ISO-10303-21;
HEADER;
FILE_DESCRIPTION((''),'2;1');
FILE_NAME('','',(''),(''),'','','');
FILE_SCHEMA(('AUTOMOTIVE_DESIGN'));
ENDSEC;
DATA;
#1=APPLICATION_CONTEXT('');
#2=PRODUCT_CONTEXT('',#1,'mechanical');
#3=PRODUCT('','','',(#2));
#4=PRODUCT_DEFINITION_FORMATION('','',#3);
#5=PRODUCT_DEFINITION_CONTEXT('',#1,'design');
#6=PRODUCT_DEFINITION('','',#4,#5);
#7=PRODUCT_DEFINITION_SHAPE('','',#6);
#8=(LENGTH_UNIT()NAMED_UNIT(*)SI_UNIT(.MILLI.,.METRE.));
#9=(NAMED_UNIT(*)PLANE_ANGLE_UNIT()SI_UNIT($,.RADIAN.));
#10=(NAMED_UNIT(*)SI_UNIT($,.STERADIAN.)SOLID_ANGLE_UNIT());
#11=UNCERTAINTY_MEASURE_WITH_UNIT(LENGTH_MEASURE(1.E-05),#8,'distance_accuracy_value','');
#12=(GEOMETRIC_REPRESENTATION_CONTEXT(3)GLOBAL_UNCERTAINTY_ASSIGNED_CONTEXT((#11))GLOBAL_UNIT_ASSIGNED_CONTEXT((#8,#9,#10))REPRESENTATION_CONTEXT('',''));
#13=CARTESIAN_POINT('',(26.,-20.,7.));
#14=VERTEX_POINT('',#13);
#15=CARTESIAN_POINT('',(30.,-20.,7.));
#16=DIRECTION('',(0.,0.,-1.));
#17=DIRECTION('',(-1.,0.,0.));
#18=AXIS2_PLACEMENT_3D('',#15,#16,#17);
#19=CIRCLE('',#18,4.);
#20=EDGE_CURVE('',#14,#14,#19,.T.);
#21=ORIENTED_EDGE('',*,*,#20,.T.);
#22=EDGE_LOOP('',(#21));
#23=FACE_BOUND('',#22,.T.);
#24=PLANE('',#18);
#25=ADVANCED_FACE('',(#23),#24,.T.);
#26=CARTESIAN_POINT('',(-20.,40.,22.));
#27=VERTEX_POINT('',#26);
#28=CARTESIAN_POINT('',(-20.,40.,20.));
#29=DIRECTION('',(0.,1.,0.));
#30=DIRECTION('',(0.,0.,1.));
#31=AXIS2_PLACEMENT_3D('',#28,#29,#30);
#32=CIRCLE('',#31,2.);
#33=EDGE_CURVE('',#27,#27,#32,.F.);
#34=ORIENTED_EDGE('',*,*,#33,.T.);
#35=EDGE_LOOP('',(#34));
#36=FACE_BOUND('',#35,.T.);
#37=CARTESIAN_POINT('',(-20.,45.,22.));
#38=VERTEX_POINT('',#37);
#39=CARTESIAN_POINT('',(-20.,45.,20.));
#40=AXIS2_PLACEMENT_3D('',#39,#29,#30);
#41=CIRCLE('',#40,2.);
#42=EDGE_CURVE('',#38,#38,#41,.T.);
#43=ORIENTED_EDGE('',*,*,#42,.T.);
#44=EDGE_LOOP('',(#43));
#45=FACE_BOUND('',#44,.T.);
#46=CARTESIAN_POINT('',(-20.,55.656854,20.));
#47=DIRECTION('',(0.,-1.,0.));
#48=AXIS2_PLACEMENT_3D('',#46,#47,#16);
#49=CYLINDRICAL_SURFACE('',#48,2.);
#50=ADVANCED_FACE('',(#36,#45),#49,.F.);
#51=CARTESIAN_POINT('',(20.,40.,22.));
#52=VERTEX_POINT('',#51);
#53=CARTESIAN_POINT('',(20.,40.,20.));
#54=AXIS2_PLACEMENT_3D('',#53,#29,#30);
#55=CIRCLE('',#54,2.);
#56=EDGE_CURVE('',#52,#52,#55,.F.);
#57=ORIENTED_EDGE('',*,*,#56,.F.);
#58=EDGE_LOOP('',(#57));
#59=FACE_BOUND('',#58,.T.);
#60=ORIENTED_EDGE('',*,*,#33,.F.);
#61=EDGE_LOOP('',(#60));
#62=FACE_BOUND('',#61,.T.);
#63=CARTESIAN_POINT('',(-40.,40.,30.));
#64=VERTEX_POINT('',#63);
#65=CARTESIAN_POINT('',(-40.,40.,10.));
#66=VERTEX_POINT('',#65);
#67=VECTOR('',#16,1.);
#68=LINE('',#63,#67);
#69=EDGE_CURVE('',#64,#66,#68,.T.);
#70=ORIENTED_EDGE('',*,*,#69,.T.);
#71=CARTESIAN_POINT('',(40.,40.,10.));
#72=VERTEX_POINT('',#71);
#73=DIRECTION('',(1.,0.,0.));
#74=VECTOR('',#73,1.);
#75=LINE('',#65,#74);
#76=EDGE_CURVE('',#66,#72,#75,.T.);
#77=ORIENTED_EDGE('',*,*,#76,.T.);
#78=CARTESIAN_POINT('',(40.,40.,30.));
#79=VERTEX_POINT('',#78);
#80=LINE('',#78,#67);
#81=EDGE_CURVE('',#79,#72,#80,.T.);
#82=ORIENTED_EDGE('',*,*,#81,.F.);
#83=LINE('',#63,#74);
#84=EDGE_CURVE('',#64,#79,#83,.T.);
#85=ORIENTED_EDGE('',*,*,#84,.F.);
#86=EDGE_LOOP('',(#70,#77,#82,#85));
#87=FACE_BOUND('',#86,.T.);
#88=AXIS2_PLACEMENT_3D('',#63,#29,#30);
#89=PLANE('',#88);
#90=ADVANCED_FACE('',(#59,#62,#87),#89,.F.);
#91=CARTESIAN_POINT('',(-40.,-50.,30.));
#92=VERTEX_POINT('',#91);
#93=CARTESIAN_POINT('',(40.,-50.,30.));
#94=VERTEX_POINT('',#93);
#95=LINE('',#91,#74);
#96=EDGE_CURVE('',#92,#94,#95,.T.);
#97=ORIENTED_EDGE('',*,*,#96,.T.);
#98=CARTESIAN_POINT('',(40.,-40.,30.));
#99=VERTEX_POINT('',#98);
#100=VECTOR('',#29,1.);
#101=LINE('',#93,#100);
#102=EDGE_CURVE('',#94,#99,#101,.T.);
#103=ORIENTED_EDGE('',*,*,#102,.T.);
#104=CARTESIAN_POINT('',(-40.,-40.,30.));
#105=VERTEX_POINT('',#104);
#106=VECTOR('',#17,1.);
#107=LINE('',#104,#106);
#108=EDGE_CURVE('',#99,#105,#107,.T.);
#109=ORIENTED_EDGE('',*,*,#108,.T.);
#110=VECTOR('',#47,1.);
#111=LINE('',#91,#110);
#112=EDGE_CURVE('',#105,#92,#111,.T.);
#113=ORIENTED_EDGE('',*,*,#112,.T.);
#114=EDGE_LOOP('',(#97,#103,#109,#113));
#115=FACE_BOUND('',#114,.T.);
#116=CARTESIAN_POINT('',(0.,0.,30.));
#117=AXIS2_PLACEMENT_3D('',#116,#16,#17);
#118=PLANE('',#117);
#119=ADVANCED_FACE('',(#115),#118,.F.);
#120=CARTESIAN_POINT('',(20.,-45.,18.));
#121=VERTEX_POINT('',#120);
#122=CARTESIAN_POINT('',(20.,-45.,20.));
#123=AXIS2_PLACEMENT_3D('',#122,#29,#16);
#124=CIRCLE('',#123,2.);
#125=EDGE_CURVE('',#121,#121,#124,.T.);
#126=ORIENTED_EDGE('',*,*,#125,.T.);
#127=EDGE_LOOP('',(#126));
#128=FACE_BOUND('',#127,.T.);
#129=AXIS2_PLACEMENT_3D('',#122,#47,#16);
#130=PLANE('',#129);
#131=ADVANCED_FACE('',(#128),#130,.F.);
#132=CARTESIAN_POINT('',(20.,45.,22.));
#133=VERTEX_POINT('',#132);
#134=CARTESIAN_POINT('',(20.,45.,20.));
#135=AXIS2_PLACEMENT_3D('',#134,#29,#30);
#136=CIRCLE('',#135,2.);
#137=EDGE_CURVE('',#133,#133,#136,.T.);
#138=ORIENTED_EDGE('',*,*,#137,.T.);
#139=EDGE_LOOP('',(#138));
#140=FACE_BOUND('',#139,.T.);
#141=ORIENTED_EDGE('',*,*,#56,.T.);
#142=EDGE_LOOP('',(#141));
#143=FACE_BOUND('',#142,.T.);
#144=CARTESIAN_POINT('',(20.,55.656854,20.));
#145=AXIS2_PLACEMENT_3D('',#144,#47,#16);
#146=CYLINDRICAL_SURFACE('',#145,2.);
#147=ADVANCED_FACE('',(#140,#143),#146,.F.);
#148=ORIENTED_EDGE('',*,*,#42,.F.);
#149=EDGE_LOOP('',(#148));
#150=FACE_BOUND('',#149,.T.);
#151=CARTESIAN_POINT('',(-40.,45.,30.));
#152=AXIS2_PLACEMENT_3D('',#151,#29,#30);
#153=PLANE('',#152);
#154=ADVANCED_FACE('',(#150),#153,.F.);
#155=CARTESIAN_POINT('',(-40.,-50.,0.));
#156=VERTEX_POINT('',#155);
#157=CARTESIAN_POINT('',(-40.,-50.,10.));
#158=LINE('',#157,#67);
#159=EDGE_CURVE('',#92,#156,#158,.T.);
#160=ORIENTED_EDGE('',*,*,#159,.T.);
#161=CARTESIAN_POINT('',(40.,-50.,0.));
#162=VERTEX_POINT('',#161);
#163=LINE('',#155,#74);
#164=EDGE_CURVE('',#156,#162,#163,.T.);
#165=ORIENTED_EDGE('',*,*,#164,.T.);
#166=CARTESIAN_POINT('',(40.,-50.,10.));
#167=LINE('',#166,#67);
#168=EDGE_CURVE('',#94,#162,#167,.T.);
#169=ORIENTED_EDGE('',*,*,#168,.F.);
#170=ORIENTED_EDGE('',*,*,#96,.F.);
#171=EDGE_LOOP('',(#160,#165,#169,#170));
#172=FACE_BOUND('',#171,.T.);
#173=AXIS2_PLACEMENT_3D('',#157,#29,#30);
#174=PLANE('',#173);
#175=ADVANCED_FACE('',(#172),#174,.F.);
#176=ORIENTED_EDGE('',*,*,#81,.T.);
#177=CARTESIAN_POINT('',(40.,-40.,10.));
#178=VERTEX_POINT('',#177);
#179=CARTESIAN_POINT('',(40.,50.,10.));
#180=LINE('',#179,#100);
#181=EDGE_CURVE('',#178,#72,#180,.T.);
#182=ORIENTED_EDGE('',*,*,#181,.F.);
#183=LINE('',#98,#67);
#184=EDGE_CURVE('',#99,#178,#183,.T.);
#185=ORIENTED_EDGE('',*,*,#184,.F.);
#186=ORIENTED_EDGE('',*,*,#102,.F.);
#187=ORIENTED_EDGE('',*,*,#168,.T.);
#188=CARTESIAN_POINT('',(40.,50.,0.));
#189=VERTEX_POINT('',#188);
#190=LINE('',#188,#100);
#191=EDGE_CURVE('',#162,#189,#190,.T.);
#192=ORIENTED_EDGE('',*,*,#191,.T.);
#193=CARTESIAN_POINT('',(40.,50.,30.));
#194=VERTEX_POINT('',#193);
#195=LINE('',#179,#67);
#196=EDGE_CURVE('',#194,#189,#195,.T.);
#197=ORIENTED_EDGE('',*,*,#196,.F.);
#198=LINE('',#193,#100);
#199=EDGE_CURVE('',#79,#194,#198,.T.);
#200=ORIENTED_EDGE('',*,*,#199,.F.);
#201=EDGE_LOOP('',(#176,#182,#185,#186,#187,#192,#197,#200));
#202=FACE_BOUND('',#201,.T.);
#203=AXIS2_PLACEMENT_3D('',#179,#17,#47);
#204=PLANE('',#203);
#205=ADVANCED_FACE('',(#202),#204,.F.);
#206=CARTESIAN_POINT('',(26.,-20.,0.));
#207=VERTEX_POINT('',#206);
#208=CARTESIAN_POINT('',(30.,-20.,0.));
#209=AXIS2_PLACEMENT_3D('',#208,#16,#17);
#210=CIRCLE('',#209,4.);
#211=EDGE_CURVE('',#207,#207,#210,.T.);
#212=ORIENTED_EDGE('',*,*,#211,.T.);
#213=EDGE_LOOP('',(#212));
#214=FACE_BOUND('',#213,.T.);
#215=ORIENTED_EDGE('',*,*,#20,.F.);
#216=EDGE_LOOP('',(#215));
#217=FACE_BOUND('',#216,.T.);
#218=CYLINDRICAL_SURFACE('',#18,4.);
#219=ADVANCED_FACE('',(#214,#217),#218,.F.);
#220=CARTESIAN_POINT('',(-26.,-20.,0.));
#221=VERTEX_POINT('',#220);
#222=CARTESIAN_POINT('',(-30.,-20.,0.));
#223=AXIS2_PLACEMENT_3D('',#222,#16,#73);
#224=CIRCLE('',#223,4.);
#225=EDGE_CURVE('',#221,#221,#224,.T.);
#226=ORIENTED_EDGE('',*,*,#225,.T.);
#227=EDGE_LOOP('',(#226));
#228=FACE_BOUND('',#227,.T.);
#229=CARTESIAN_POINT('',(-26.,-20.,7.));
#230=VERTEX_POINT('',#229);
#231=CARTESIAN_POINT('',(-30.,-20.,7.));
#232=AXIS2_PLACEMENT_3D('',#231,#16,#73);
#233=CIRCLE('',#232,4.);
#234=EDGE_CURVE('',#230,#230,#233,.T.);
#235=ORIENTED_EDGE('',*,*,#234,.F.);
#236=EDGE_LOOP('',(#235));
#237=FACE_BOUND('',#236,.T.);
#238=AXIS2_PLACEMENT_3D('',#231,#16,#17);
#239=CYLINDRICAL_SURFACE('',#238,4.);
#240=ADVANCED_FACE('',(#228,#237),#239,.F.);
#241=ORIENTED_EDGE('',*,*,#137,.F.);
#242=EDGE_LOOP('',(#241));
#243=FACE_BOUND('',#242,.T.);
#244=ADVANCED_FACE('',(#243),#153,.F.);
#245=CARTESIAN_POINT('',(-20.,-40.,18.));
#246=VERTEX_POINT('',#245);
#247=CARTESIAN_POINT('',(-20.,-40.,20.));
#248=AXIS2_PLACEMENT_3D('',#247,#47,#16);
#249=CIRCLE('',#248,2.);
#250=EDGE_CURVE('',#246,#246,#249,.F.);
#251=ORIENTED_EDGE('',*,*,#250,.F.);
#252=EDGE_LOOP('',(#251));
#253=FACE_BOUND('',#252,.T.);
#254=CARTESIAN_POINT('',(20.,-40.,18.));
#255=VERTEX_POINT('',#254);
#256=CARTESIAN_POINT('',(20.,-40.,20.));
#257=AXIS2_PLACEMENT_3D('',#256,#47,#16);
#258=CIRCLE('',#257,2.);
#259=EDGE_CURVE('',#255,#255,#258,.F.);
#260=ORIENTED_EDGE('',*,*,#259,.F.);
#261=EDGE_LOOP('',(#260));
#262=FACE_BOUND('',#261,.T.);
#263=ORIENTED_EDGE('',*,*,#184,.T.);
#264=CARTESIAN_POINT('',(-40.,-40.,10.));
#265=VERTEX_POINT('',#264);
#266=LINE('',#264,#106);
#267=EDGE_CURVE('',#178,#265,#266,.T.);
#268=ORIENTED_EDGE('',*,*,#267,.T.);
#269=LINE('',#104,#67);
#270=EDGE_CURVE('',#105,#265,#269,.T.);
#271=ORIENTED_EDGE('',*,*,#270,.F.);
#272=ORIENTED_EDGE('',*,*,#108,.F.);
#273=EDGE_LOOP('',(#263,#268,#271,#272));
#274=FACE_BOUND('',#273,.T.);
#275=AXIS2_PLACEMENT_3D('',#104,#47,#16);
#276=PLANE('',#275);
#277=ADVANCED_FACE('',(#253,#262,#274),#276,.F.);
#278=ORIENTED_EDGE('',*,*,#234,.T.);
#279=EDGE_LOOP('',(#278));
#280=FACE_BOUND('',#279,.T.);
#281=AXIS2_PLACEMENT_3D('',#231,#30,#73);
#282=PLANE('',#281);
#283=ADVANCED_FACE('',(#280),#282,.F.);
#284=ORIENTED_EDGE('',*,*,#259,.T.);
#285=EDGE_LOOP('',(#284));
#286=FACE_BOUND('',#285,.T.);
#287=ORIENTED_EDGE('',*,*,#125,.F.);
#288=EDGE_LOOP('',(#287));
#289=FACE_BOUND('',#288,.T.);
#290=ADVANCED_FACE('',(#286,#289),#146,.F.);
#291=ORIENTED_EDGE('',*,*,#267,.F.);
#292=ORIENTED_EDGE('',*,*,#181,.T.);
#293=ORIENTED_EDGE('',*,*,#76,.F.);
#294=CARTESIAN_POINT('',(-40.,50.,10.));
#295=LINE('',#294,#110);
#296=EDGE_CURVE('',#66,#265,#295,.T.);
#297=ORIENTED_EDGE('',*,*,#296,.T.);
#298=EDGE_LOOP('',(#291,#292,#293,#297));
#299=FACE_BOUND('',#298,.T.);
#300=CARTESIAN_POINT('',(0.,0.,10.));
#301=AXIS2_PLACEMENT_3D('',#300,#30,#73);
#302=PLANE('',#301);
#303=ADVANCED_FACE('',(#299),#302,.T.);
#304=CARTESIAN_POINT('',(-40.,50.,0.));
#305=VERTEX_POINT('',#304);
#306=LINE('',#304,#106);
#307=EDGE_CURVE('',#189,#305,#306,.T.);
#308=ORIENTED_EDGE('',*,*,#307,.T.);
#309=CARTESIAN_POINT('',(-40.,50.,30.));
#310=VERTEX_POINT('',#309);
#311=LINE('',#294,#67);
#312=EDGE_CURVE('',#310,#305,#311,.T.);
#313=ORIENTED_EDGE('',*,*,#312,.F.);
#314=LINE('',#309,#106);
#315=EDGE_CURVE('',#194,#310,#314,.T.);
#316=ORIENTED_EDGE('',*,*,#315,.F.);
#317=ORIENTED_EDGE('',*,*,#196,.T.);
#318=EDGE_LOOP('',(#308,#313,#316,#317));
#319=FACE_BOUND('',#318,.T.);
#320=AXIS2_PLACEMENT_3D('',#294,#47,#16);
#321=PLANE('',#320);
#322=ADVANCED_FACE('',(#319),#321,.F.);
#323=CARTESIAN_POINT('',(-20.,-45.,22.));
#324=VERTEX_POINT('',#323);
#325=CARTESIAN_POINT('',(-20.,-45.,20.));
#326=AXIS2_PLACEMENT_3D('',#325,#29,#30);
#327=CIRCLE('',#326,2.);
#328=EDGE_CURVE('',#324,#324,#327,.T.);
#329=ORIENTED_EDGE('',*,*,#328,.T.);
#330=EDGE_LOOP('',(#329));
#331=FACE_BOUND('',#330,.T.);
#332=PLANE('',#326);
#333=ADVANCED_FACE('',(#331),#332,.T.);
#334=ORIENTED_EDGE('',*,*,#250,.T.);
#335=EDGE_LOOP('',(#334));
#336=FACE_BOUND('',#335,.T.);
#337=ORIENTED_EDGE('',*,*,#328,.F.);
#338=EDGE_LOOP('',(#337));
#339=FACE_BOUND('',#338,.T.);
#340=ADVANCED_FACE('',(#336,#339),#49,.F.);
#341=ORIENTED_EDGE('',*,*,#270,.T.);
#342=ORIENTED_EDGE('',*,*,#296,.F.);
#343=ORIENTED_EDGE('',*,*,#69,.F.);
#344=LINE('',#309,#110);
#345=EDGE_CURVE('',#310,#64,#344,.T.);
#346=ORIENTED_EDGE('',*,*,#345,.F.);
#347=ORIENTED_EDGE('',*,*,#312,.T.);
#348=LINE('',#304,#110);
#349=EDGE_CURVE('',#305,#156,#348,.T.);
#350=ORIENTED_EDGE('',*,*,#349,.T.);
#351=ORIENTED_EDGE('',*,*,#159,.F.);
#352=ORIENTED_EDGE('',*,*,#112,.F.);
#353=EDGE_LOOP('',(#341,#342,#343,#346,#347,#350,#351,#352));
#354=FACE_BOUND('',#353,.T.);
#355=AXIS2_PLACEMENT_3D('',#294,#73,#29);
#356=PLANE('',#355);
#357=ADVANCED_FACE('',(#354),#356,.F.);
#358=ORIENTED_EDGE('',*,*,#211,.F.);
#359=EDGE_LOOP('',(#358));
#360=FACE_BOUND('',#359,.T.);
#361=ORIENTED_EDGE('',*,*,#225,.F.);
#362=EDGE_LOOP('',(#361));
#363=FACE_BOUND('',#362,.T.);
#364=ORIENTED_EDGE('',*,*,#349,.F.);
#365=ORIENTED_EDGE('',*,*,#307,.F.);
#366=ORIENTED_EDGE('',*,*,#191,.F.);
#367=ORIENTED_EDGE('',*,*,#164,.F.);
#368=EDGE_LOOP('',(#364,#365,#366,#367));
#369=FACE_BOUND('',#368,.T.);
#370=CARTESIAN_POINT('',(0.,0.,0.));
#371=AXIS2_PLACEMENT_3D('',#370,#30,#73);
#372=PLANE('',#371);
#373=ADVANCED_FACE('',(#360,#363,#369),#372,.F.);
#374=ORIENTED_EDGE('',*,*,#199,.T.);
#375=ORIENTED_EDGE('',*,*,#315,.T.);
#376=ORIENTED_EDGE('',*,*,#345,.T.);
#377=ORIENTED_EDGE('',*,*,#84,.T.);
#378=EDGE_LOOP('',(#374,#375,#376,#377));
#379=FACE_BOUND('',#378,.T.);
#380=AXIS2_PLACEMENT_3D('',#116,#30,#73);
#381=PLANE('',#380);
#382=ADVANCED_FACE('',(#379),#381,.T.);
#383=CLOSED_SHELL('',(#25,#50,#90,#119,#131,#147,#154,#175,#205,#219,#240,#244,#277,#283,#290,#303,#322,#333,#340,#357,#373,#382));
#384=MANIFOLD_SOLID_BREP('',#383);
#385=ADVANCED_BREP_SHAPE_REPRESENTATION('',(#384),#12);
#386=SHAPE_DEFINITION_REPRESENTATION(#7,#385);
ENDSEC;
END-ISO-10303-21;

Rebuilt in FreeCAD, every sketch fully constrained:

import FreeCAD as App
import Part
import Sketcher

doc = App.newDocument("Part")
body = doc.addObject("PartDesign::Body", "Body")

sketch1 = body.newObject("Sketcher::SketchObject", "Sketch")
sketch1.AttachmentSupport = (doc.getObject("XY_Plane"), [""])
sketch1.MapMode = "FlatFace"
sketch1.addGeometry([
    Part.LineSegment(App.Vector(-40, 50, 0), App.Vector(-40, -50, 0)),
    Part.LineSegment(App.Vector(-40, -50, 0), App.Vector(40, -50, 0)),
    Part.LineSegment(App.Vector(40, -50, 0), App.Vector(40, 50, 0)),
    Part.LineSegment(App.Vector(40, 50, 0), App.Vector(-40, 50, 0)),
], False)
sketch1.addConstraint([
    Sketcher.Constraint("Coincident", 0, 2, 1, 1),
    Sketcher.Constraint("Coincident", 1, 2, 2, 1),
    Sketcher.Constraint("Coincident", 2, 2, 3, 1),
    Sketcher.Constraint("Coincident", 3, 2, 0, 1),
    Sketcher.Constraint("Vertical", 0),
    Sketcher.Constraint("Horizontal", 1),
    Sketcher.Constraint("Vertical", 2),
    Sketcher.Constraint("Horizontal", 3),
    Sketcher.Constraint("Symmetric", 0, 2, 2, 2, -1, 1),
    Sketcher.Constraint("DistanceX", 1, 1, 1, 2, 80.0),
    Sketcher.Constraint("DistanceY", 0, 2, 0, 1, 100.0),
])
pad1 = body.newObject("PartDesign::Pad", "Pad")
pad1.Profile = sketch1
pad1.Length = 10

sketch2 = body.newObject("Sketcher::SketchObject", "Sketch001")
sketch2.AttachmentSupport = (doc.getObject("XY_Plane"), [""])
sketch2.MapMode = "FlatFace"
sketch2.addGeometry([
    Part.Circle(App.Vector(30, -20, 0), App.Vector(0, 0, 1), 4),
    Part.Circle(App.Vector(-30, -20, 0), App.Vector(0, 0, 1), 4),
], False)
sketch2.addConstraint([
    Sketcher.Constraint("Equal", 0, 1),
    Sketcher.Constraint("Symmetric", 0, 3, 1, 3, -2),
    Sketcher.Constraint("Diameter", 0, 8.0),
    Sketcher.Constraint("DistanceX", -1, 1, 0, 3, 30.0),
    Sketcher.Constraint("DistanceY", 0, 3, -1, 1, 20.0),
])
pocket1 = body.newObject("PartDesign::Pocket", "Pocket")
pocket1.Profile = sketch2
pocket1.Length = 7
pocket1.Reversed = True

sketch3 = body.newObject("Sketcher::SketchObject", "Sketch002")
sketch3.AttachmentSupport = (doc.getObject("XY_Plane"), [""])
sketch3.MapMode = "FlatFace"
sketch3.AttachmentOffset = App.Placement(App.Vector(0, 0, 10), App.Rotation())
sketch3.addGeometry([
    Part.LineSegment(App.Vector(-40, -40, 0), App.Vector(-40, -50, 0)),
    Part.LineSegment(App.Vector(-40, -50, 0), App.Vector(40, -50, 0)),
    Part.LineSegment(App.Vector(40, -50, 0), App.Vector(40, -40, 0)),
    Part.LineSegment(App.Vector(40, -40, 0), App.Vector(-40, -40, 0)),
    Part.LineSegment(App.Vector(-40, 50, 0), App.Vector(-40, 40, 0)),
    Part.LineSegment(App.Vector(-40, 40, 0), App.Vector(40, 40, 0)),
    Part.LineSegment(App.Vector(40, 40, 0), App.Vector(40, 50, 0)),
    Part.LineSegment(App.Vector(40, 50, 0), App.Vector(-40, 50, 0)),
], False)
sketch3.addConstraint([
    Sketcher.Constraint("Coincident", 0, 2, 1, 1),
    Sketcher.Constraint("Coincident", 1, 2, 2, 1),
    Sketcher.Constraint("Coincident", 2, 2, 3, 1),
    Sketcher.Constraint("Coincident", 3, 2, 0, 1),
    Sketcher.Constraint("Coincident", 4, 2, 5, 1),
    Sketcher.Constraint("Coincident", 5, 2, 6, 1),
    Sketcher.Constraint("Coincident", 6, 2, 7, 1),
    Sketcher.Constraint("Coincident", 7, 2, 4, 1),
    Sketcher.Constraint("Vertical", 0),
    Sketcher.Constraint("Horizontal", 1),
    Sketcher.Constraint("Vertical", 2),
    Sketcher.Constraint("Horizontal", 3),
    Sketcher.Constraint("Vertical", 4),
    Sketcher.Constraint("Horizontal", 5),
    Sketcher.Constraint("Vertical", 6),
    Sketcher.Constraint("Horizontal", 7),
    Sketcher.Constraint("Symmetric", 2, 2, 4, 2, -1, 1),
    Sketcher.Constraint("Symmetric", 0, 2, 6, 2, -1, 1),
    Sketcher.Constraint("Vertical", 3, 2, 4, 2),
    Sketcher.Constraint("DistanceX", 1, 1, 1, 2, 80.0),
    Sketcher.Constraint("DistanceY", 0, 2, 0, 1, 10.0),
    Sketcher.Constraint("DistanceY", 0, 2, -1, 1, 50.0),
])
pad2 = body.newObject("PartDesign::Pad", "Pad001")
pad2.Profile = sketch3
pad2.Length = 20

sketch4 = body.newObject("Sketcher::SketchObject", "Sketch003")
sketch4.AttachmentSupport = (doc.getObject("XZ_Plane"), [""])
sketch4.MapMode = "FlatFace"
sketch4.AttachmentOffset = App.Placement(App.Vector(0, 0, 40), App.Rotation())
sketch4.addGeometry([
    Part.Circle(App.Vector(-20, 20, 0), App.Vector(0, 0, 1), 2),
    Part.Circle(App.Vector(20, 20, 0), App.Vector(0, 0, 1), 2),
], False)
sketch4.addConstraint([
    Sketcher.Constraint("Equal", 0, 1),
    Sketcher.Constraint("Symmetric", 0, 3, 1, 3, -2),
    Sketcher.Constraint("Diameter", 0, 4.0),
    Sketcher.Constraint("DistanceX", 0, 3, -1, 1, 20.0),
    Sketcher.Constraint("DistanceY", -1, 1, 0, 3, 20.0),
])
pocket2 = body.newObject("PartDesign::Pocket", "Pocket001")
pocket2.Profile = sketch4
pocket2.Type = "TwoLengths"
pocket2.Length = 85
pocket2.Length2 = 5

doc.recompute()
